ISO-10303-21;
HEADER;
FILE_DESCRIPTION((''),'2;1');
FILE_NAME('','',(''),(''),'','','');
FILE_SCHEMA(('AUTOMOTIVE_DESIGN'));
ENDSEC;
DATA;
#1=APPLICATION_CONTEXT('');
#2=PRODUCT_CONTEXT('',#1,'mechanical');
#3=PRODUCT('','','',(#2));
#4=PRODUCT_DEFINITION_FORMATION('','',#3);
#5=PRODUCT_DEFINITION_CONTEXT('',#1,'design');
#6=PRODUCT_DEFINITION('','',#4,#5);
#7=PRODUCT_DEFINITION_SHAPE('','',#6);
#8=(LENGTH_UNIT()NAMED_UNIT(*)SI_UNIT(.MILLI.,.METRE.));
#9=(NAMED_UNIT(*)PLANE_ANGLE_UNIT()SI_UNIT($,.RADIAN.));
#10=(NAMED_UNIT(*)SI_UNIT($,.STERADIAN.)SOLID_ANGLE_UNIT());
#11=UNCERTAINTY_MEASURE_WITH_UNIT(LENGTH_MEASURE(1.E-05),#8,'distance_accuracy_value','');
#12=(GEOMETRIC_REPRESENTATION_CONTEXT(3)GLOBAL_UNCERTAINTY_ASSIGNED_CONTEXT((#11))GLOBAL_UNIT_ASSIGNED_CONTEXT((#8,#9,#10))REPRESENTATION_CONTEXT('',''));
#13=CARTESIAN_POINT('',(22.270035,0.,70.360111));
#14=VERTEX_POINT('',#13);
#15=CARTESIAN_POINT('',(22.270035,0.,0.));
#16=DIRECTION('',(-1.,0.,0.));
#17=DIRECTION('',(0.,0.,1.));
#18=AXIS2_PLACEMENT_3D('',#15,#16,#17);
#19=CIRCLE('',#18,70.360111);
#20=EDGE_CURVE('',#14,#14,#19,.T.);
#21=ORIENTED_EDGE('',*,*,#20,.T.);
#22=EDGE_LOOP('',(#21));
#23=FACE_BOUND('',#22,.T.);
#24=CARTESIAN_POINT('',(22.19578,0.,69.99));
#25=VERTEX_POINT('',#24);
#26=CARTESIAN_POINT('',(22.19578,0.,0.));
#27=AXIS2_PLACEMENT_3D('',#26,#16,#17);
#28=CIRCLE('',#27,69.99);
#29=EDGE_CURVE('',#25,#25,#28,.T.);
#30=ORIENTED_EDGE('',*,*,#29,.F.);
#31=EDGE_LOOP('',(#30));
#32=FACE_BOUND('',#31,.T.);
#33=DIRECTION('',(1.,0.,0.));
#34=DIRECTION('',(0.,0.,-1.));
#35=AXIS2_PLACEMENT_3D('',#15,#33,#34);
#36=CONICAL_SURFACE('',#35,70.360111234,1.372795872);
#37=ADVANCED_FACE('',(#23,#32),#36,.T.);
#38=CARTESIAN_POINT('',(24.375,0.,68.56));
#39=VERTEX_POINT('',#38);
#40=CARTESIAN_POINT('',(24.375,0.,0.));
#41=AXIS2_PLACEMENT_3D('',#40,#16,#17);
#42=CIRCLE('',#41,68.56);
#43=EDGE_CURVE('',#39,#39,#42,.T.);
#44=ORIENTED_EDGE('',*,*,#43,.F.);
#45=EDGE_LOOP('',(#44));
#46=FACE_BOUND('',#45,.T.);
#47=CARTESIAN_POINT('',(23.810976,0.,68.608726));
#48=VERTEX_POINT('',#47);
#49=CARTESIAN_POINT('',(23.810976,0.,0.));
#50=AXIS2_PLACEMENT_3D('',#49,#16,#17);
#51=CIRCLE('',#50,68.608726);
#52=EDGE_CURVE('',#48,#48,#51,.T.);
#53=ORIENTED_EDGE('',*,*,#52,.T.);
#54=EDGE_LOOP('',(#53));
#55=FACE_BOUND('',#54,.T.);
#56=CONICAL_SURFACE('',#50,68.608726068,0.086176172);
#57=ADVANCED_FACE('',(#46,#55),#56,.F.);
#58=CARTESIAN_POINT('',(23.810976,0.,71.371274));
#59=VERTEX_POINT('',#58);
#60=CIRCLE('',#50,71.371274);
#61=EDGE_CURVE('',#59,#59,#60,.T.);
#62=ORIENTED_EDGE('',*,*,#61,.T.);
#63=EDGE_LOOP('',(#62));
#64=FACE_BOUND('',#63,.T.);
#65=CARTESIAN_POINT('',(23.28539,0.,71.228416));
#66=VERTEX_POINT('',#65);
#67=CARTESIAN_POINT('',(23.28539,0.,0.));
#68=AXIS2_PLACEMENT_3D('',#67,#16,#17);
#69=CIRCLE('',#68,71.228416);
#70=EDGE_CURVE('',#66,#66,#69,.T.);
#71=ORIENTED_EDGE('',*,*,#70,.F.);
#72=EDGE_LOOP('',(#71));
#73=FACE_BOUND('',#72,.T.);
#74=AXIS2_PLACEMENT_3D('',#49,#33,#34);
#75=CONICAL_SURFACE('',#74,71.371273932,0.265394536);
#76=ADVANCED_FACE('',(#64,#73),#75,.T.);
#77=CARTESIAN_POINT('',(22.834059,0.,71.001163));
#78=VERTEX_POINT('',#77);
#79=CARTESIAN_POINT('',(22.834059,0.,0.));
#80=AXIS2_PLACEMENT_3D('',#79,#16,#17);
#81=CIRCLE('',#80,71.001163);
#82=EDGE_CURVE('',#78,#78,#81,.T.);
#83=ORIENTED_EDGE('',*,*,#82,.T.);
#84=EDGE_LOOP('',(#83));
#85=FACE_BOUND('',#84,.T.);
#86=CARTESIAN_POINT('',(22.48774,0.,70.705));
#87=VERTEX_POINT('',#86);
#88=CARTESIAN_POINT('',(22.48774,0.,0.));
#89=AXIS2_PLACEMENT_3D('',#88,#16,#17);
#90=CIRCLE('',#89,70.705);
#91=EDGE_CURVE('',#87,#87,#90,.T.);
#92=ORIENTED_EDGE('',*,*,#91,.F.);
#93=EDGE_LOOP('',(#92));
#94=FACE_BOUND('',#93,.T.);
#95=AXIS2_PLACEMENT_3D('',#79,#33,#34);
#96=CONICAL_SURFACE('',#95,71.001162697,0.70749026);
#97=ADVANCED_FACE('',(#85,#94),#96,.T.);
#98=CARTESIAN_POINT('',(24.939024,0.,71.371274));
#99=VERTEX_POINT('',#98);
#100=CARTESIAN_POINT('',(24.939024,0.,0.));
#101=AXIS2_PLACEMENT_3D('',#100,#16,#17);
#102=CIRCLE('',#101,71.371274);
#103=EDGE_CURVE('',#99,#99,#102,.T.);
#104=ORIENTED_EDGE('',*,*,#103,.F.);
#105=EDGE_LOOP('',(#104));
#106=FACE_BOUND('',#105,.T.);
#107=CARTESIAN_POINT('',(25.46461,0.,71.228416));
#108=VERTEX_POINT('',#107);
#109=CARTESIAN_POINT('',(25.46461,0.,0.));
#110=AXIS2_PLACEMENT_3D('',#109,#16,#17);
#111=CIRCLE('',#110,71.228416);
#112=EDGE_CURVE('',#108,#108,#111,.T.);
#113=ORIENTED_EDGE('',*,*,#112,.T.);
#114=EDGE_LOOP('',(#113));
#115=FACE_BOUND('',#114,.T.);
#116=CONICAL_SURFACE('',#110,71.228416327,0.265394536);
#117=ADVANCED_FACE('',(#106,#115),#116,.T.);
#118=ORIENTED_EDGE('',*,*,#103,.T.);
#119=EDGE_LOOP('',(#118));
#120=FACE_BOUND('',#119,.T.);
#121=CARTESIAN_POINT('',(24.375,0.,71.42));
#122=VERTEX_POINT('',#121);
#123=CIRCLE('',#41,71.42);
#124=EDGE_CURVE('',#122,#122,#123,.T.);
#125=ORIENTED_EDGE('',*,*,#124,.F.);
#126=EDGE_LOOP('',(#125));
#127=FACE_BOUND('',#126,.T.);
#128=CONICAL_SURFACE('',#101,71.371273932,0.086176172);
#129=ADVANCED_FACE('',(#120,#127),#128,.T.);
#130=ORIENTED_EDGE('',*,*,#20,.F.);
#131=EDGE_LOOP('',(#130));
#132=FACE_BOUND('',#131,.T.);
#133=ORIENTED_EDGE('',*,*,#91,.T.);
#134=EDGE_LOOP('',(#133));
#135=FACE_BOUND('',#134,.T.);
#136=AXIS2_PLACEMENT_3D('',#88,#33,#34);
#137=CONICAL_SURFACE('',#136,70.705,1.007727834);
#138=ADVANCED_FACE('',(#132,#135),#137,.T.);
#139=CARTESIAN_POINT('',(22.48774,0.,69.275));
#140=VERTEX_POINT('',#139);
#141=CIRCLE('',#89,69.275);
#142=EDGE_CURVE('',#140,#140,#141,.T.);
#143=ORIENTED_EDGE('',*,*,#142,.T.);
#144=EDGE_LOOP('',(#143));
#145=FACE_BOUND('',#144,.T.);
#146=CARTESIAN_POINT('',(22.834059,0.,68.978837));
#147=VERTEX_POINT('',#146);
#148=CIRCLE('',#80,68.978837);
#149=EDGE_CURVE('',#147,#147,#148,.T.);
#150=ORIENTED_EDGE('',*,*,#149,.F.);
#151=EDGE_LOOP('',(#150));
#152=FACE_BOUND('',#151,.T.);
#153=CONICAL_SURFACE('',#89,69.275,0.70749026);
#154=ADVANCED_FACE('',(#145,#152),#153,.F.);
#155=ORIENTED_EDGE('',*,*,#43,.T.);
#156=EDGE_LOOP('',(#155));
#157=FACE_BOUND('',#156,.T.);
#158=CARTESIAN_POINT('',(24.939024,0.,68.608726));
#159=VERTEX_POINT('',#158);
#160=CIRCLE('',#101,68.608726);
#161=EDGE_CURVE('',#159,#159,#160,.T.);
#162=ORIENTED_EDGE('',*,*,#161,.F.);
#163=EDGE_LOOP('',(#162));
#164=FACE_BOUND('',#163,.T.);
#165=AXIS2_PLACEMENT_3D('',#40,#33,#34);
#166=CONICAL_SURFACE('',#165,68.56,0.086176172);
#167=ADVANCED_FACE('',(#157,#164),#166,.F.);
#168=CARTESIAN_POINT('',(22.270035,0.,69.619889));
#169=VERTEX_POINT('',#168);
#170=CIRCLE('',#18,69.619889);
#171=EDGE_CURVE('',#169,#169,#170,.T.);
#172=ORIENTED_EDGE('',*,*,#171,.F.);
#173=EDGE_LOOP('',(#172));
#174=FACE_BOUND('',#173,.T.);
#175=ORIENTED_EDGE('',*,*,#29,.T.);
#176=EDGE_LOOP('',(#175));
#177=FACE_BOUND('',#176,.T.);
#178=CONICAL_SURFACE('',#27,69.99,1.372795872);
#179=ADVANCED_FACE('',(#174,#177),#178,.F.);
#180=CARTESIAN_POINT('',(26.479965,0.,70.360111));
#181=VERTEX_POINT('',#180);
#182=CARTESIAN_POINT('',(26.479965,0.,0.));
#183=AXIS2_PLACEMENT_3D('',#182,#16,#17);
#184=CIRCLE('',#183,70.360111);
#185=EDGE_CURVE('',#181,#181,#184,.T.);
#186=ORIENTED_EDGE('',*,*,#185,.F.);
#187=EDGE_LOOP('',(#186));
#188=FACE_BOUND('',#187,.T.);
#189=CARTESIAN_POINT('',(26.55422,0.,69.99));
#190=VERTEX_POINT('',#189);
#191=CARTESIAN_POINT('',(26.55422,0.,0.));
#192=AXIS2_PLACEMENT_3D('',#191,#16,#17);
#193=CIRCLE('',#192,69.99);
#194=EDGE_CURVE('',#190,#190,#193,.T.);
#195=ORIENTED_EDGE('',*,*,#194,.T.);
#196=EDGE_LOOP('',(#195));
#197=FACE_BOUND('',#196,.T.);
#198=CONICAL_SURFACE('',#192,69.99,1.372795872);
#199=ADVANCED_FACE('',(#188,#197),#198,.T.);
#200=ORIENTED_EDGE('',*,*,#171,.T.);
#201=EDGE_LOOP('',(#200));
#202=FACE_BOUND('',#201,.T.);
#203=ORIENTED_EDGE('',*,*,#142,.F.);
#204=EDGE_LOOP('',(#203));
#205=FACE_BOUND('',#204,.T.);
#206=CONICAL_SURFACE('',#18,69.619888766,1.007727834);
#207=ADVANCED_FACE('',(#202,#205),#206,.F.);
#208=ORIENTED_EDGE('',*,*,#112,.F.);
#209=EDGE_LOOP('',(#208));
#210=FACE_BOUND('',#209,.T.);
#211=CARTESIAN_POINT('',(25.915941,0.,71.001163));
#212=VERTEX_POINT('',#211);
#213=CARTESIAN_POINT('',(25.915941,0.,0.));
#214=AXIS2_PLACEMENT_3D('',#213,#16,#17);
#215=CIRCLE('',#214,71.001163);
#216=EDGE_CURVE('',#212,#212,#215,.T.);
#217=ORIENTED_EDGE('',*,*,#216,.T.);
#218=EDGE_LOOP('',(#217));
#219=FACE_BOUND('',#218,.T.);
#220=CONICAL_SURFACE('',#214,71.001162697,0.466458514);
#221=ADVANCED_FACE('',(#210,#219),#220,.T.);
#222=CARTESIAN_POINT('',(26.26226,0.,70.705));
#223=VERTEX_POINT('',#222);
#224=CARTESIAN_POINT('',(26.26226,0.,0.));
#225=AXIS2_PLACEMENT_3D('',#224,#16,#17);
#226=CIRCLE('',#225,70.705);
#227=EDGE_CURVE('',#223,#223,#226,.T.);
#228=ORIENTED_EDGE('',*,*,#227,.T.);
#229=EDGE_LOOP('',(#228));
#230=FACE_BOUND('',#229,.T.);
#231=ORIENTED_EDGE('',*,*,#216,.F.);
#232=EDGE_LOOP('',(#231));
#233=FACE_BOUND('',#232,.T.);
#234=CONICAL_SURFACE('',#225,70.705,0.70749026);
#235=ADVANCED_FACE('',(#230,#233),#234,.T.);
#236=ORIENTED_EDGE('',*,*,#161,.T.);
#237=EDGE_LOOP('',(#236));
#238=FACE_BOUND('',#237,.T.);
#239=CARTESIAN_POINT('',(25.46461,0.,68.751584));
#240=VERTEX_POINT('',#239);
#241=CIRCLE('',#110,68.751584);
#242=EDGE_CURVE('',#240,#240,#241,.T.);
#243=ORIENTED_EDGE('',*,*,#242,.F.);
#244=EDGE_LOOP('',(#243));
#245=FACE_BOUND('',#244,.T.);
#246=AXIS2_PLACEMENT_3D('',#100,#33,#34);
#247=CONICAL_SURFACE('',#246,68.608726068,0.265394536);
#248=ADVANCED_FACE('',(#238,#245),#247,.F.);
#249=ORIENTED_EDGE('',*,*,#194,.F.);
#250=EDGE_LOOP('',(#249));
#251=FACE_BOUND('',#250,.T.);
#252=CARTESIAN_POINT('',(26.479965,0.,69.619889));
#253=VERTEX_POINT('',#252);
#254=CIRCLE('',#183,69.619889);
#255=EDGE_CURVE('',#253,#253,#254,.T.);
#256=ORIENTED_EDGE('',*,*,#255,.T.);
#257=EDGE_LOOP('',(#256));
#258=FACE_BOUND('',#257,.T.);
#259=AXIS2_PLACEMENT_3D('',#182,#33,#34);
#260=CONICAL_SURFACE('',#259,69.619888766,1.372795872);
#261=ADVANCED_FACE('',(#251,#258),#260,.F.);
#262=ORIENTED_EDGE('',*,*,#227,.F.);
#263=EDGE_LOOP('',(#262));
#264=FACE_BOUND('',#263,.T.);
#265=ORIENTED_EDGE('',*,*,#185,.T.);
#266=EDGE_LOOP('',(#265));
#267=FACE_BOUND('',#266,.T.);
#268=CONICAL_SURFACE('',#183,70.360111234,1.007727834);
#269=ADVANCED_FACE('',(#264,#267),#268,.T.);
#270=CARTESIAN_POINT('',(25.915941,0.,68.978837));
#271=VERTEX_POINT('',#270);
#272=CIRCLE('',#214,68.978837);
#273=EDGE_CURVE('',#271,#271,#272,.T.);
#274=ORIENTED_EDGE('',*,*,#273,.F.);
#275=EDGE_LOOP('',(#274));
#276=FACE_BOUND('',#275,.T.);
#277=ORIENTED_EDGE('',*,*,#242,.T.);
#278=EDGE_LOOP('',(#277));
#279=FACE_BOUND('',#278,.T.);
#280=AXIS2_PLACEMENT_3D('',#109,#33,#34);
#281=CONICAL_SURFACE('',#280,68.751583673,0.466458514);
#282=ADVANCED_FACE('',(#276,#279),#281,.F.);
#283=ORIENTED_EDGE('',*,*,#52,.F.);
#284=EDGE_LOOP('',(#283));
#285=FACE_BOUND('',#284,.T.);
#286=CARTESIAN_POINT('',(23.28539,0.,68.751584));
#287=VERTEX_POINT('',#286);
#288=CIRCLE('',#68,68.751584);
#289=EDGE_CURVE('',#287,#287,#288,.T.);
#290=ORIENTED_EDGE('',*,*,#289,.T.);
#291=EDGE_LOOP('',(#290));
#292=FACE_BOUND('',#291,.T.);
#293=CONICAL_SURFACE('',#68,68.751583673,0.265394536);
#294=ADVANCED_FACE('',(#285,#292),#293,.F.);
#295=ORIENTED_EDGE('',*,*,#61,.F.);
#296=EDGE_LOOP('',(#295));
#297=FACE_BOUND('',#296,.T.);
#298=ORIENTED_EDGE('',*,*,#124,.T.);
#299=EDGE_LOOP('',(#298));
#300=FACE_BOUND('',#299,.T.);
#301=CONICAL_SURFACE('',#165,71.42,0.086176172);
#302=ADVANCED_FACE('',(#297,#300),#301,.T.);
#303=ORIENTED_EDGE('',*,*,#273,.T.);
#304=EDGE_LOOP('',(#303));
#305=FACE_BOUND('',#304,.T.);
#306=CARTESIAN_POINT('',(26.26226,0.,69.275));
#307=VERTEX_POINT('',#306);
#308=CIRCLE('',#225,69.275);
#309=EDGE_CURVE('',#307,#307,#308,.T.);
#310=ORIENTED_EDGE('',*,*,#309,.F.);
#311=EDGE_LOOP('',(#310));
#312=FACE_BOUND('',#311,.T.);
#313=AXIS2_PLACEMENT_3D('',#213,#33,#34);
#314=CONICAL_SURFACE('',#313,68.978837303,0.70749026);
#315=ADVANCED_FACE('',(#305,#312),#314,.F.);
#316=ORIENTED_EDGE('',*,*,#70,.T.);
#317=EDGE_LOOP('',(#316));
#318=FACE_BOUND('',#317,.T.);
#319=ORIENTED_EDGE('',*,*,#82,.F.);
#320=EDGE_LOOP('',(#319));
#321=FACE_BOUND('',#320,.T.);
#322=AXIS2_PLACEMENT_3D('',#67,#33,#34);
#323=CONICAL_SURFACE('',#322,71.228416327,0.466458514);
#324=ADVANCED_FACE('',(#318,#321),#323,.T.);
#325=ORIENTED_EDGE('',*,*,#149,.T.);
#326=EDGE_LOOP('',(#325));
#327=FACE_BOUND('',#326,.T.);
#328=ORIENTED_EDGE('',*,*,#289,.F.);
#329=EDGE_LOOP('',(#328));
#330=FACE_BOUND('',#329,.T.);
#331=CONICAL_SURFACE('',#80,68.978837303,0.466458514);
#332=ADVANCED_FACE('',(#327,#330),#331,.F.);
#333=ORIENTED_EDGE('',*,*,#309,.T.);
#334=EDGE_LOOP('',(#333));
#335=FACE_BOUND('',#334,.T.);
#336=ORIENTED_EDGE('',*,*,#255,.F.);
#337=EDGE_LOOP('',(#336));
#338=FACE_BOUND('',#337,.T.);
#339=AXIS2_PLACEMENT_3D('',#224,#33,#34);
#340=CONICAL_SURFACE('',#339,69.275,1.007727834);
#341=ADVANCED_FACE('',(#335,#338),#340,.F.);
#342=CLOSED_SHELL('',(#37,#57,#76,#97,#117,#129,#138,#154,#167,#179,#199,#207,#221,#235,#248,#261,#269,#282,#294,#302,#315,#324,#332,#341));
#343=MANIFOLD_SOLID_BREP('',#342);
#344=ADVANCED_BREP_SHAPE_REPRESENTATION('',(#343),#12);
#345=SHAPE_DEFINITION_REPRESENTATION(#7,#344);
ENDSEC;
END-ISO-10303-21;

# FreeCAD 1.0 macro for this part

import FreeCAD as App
import Part
import Sketcher

V = App.Vector

doc = App.newDocument("Part")
body = doc.addObject("PartDesign::Body", "Body")

sketch1 = body.newObject("Sketcher::SketchObject", "Sketch")
sketch1.AttachmentSupport = (doc.getObject("XY_Plane"), [""])
sketch1.MapMode = "FlatFace"
sketch1.addGeometry([
    Part.LineSegment(V(24.94, 71.37, 0), V(24.38, 71.42, 0)),
    Part.LineSegment(V(24.38, 71.42, 0), V(23.81, 71.37, 0)),
    Part.LineSegment(V(23.81, 71.37, 0), V(23.29, 71.23, 0)),
    Part.LineSegment(V(23.29, 71.23, 0), V(22.83, 71, 0)),
    Part.LineSegment(V(22.83, 71, 0), V(22.49, 70.7, 0)),
    Part.LineSegment(V(22.49, 70.7, 0), V(22.27, 70.36, 0)),
    Part.LineSegment(V(22.27, 70.36, 0), V(22.2, 69.99, 0)),
    Part.LineSegment(V(22.2, 69.99, 0), V(22.27, 69.62, 0)),
    Part.LineSegment(V(22.27, 69.62, 0), V(22.49, 69.28, 0)),
    Part.LineSegment(V(22.49, 69.28, 0), V(22.83, 68.98, 0)),
    Part.LineSegment(V(22.83, 68.98, 0), V(23.29, 68.75, 0)),
    Part.LineSegment(V(23.29, 68.75, 0), V(23.81, 68.61, 0)),
    Part.LineSegment(V(23.81, 68.61, 0), V(24.38, 68.56, 0)),
    Part.LineSegment(V(24.38, 68.56, 0), V(24.94, 68.61, 0)),
    Part.LineSegment(V(24.94, 68.61, 0), V(25.46, 68.75, 0)),
    Part.LineSegment(V(25.46, 68.75, 0), V(25.92, 68.98, 0)),
    Part.LineSegment(V(25.92, 68.98, 0), V(26.26, 69.28, 0)),
    Part.LineSegment(V(26.26, 69.28, 0), V(26.48, 69.62, 0)),
    Part.LineSegment(V(26.48, 69.62, 0), V(26.55, 69.99, 0)),
    Part.LineSegment(V(26.55, 69.99, 0), V(26.48, 70.36, 0)),
    Part.LineSegment(V(26.48, 70.36, 0), V(26.26, 70.7, 0)),
    Part.LineSegment(V(26.26, 70.7, 0), V(25.92, 71, 0)),
    Part.LineSegment(V(25.92, 71, 0), V(25.46, 71.23, 0)),
    Part.LineSegment(V(25.46, 71.23, 0), V(24.94, 71.37, 0)),
], False)
sketch1.addConstraint([
    Sketcher.Constraint("Coincident", 0, 2, 1, 1),
    Sketcher.Constraint("Coincident", 1, 2, 2, 1),
    Sketcher.Constraint("Coincident", 2, 2, 3, 1),
    Sketcher.Constraint("Coincident", 3, 2, 4, 1),
    Sketcher.Constraint("Coincident", 4, 2, 5, 1),
    Sketcher.Constraint("Coincident", 5, 2, 6, 1),
    Sketcher.Constraint("Coincident", 6, 2, 7, 1),
    Sketcher.Constraint("Coincident", 7, 2, 8, 1),
    Sketcher.Constraint("Coincident", 8, 2, 9, 1),
    Sketcher.Constraint("Coincident", 9, 2, 10, 1),
    Sketcher.Constraint("Coincident", 10, 2, 11, 1),
    Sketcher.Constraint("Coincident", 11, 2, 12, 1),
    Sketcher.Constraint("Coincident", 12, 2, 13, 1),
    Sketcher.Constraint("Coincident", 13, 2, 14, 1),
    Sketcher.Constraint("Coincident", 14, 2, 15, 1),
    Sketcher.Constraint("Coincident", 15, 2, 16, 1),
    Sketcher.Constraint("Coincident", 16, 2, 17, 1),
    Sketcher.Constraint("Coincident", 17, 2, 18, 1),
    Sketcher.Constraint("Coincident", 18, 2, 19, 1),
    Sketcher.Constraint("Coincident", 19, 2, 20, 1),
    Sketcher.Constraint("Coincident", 20, 2, 21, 1),
    Sketcher.Constraint("Coincident", 21, 2, 22, 1),
    Sketcher.Constraint("Coincident", 22, 2, 23, 1),
    Sketcher.Constraint("Coincident", 23, 2, 0, 1),
    Sketcher.Constraint("Parallel", 0, 12),
    Sketcher.Constraint("Parallel", 1, 13),
    Sketcher.Constraint("Parallel", 2, 14),
    Sketcher.Constraint("Parallel", 3, 15),
    Sketcher.Constraint("Parallel", 4, 16),
    Sketcher.Constraint("Parallel", 5, 17),
    Sketcher.Constraint("Parallel", 6, 18),
    Sketcher.Constraint("Parallel", 7, 19),
    Sketcher.Constraint("Parallel", 8, 20),
    Sketcher.Constraint("Parallel", 9, 21),
    Sketcher.Constraint("Parallel", 10, 22),
    Sketcher.Constraint("Parallel", 11, 23),
    Sketcher.Constraint("Horizontal", 11, 2, 13, 2),
    Sketcher.Constraint("Horizontal", 10, 2, 14, 2),
    Sketcher.Constraint("Horizontal", 9, 2, 15, 2),
    Sketcher.Constraint("Horizontal", 8, 2, 16, 2),
    Sketcher.Constraint("Horizontal", 7, 2, 17, 2),
    Sketcher.Constraint("Horizontal", 6, 2, 18, 2),
    Sketcher.Constraint("Horizontal", 5, 2, 19, 2),
    Sketcher.Constraint("Horizontal", 4, 2, 20, 2),
    Sketcher.Constraint("Horizontal", 3, 2, 21, 2),
    Sketcher.Constraint("Horizontal", 2, 2, 22, 2),
    Sketcher.Constraint("Horizontal", 1, 2, 23, 2),
    Sketcher.Constraint("Vertical", 5, 2, 7, 2),
    Sketcher.Constraint("Vertical", 4, 2, 8, 2),
    Sketcher.Constraint("Vertical", 3, 2, 9, 2),
    Sketcher.Constraint("Vertical", 2, 2, 10, 2),
    Sketcher.Constraint("Vertical", 1, 2, 11, 2),
    Sketcher.Constraint("Vertical", 0, 2, 12, 2),
    Sketcher.Constraint("Vertical", 17, 2, 19, 2),
    Sketcher.Constraint("Vertical", 16, 2, 20, 2),
    Sketcher.Constraint("Vertical", 15, 2, 21, 2),
    Sketcher.Constraint("Vertical", 14, 2, 22, 2),
    Sketcher.Constraint("Vertical", 13, 2, 23, 2),
    Sketcher.Constraint("DistanceY", -1, 1, 0, 2, 71.42),
    Sketcher.Constraint("DistanceY", -1, 1, 6, 2, 69.99),
    Sketcher.Constraint("DistanceY", 8, 2, 4, 2, 1.43),
    Sketcher.Constraint("DistanceX", -1, 1, 0, 2, 24.375),
    Sketcher.Constraint("DistanceX", -1, 1, 2, 2, 23.28539),
    Sketcher.Constraint("DistanceX", -1, 1, 3, 2, 22.834059),
    Sketcher.Constraint("DistanceX", -1, 1, 4, 2, 22.48774),
    Sketcher.Constraint("DistanceY", -1, 1, 5, 2, 70.360111),
    Sketcher.Constraint("DistanceX", -1, 1, 6, 2, 22.19578),
    Sketcher.Constraint("DistanceY", 3, 2, 1, 2, 0.370111),
    Sketcher.Constraint("DistanceY", 5, 2, 3, 2, 0.641051),
    Sketcher.Constraint("DistanceX", 5, 2, 1, 2, 1.540941),
    Sketcher.Constraint("Distance", 0, 0.566124),
    Sketcher.Constraint("Distance", 2, 0.544655),
])
revolution = body.newObject("PartDesign::Revolution", "Revolution")
revolution.Profile = sketch1
revolution.ReferenceAxis = (sketch1, ["H_Axis"])
revolution.Angle = 360

doc.recompute()
